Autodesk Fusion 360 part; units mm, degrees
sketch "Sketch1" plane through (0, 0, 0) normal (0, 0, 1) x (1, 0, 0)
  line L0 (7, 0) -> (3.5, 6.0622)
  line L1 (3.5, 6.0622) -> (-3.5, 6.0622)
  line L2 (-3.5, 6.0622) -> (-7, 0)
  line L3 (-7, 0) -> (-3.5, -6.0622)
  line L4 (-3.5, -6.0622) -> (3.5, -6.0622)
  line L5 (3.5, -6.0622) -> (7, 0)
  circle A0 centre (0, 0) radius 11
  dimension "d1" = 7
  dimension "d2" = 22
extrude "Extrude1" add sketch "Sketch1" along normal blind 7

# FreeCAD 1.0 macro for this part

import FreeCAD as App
import Part
import Sketcher


def add_polygon(sketch, points):
    """Adds a closed chain of lines whose ends are joined by coincident constraints."""
    first, n = sketch.GeometryCount, len(points)
    for a, b in zip(points, points[1:] + points[:1]):
        sketch.addGeometry(Part.LineSegment(App.Vector(*a, 0), App.Vector(*b, 0)), False)
    for i in range(n):
        sketch.addConstraint(Sketcher.Constraint("Coincident", first + i, 2, first + (i + 1) % n, 1))

doc = App.newDocument("Part")
params = doc.addObject("Spreadsheet::Sheet", "Params")
for row, (alias, value) in enumerate([
    ("sketch1_diameter", "22 mm"),
    ("sketch1_width", "7 mm"),
    ("sketch1_length", "7 mm"),
    ("pad1_length", "7 mm"),
], start=1):
    params.set(f"A{row}", alias)
    params.set(f"B{row}", "=" + value)
    params.setAlias(f"B{row}", alias)

body = doc.addObject("PartDesign::Body", "Body")

# Sketch on XY plane
sketch1 = body.newObject("Sketcher::SketchObject", "Sketch")
sketch1.AttachmentSupport = (doc.getObject("XY_Plane"), [""])
sketch1.MapMode = "FlatFace"
sketch1.addGeometry(Part.Circle(App.Vector(0, 0, 0), App.Vector(0, 0, 1), 11), False)  # 0
add_polygon(sketch1, [(3.5, 6.0622), (7, 0), (3.5, -6.0622), (-3.5, -6.0622), (-7, 0), (-3.5, 6.0622)])  # lines 1-6
sketch1.addConstraint([
    Sketcher.Constraint("Horizontal", 3),
    Sketcher.Constraint("Horizontal", 6),
    Sketcher.Constraint("Coincident", 0, 3, -1, 1),
    Sketcher.Constraint("Symmetric", 1, 2, 4, 2, -1, 1),
    Sketcher.Constraint("Symmetric", 2, 2, 5, 2, -1, 1),
    Sketcher.Constraint("PointOnObject", 1, 2, -1),
    Sketcher.Constraint("Parallel", 1, 4),
    Sketcher.Constraint("Vertical", 3, 2, 5, 2),
    Sketcher.Constraint("Diameter", 0, 22.0),
    Sketcher.Constraint("DistanceX", 3, 2, 3, 1, 7.0),
    Sketcher.Constraint("Distance", 1, 7.0),
    Sketcher.Constraint("DistanceX", -1, 1, 1, 2, 7.0),
])
sketch1.setExpression("Constraints[14]", "Params.sketch1_diameter")
sketch1.setExpression("Constraints[15]", "Params.sketch1_width")
sketch1.setExpression("Constraints[16]", "Params.sketch1_length")
pad1 = body.newObject("PartDesign::Pad", "Pad")
pad1.Profile = sketch1
pad1.setExpression("Length", "Params.pad1_length")

doc.recompute()
